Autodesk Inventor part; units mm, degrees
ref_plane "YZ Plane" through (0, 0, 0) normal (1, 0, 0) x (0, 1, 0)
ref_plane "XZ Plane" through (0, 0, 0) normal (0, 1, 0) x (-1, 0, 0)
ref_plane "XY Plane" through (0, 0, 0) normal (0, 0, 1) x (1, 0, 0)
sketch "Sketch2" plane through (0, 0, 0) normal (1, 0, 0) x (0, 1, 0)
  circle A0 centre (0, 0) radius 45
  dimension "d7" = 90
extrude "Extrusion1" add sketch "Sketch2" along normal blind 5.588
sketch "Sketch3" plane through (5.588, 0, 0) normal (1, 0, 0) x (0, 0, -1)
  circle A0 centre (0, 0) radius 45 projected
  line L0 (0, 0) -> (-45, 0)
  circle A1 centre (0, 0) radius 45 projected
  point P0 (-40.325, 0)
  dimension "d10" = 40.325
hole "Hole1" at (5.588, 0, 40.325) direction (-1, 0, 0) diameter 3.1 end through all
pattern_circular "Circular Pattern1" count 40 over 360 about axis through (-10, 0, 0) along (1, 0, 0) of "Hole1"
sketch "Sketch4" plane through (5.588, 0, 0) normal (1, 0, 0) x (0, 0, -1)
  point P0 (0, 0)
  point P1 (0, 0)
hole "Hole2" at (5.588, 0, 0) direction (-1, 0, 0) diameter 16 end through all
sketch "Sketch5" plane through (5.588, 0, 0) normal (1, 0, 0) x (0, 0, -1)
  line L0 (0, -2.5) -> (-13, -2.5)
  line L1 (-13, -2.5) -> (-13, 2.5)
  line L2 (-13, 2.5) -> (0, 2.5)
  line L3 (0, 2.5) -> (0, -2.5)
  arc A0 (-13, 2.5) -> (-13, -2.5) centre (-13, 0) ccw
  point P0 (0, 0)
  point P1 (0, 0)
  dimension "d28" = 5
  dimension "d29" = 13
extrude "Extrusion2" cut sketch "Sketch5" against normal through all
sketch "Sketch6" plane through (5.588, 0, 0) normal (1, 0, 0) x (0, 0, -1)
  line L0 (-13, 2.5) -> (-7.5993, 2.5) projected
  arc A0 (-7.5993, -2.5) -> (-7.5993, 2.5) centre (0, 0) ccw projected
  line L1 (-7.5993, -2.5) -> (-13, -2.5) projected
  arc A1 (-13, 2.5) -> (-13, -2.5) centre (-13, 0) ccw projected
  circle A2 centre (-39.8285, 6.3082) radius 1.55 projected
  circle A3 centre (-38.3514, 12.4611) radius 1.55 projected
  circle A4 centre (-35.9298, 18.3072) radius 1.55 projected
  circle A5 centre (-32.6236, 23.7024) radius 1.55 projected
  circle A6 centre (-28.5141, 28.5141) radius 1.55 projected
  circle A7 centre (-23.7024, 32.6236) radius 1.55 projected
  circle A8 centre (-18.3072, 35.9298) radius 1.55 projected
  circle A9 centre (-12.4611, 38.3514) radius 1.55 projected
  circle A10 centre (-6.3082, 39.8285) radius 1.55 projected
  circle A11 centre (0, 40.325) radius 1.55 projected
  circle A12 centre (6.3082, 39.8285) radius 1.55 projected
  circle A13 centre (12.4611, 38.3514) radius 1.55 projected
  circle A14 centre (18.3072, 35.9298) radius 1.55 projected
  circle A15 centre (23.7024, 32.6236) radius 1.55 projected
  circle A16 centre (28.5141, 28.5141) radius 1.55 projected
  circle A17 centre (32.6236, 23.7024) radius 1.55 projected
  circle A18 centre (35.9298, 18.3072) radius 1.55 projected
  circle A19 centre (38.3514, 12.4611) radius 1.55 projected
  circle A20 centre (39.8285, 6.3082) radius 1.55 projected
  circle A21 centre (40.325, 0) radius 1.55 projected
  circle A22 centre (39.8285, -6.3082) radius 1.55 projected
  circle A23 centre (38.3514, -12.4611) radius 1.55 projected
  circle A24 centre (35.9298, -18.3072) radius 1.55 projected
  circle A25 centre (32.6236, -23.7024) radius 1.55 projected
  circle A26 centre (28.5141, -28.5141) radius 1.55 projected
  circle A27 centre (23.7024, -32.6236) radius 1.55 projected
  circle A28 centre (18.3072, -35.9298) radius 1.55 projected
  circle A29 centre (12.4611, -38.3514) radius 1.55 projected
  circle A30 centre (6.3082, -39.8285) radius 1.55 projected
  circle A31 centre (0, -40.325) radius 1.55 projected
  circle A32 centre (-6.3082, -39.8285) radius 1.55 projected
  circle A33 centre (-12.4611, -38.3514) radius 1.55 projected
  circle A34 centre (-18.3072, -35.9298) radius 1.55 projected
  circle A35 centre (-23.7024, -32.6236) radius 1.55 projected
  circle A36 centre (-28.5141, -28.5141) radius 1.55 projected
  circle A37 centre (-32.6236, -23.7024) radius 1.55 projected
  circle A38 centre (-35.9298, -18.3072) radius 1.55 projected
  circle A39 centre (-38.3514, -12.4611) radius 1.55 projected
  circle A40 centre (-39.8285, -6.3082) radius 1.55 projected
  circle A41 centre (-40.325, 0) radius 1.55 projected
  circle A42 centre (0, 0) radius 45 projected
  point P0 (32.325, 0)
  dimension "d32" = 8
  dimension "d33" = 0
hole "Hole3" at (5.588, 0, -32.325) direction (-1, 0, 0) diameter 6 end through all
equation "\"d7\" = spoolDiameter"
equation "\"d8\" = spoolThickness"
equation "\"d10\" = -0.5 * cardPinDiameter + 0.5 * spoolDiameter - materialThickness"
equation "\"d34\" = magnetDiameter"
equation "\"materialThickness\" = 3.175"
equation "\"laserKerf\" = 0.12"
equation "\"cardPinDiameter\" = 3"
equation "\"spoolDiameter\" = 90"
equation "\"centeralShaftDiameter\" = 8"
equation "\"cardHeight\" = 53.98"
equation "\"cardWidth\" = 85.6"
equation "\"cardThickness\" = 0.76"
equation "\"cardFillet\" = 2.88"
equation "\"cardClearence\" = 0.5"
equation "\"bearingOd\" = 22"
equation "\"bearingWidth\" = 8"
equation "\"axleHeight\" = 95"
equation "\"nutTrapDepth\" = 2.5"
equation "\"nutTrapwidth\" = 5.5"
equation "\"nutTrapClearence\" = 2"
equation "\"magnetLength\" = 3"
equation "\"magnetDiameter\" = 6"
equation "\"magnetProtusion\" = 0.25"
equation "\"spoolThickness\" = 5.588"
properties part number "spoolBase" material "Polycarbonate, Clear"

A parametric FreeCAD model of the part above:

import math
import FreeCAD as App
import Part
import Sketcher

doc = App.newDocument("Part")
params = doc.addObject("Spreadsheet::Sheet", "Params")
for row, (alias, value) in enumerate([
    ("sketch1_diameter", "90 mm"),
    ("pad1_length", "5.588 mm"),
    ("sketch2_diameter", "3.1 mm"),
    ("hole_diameter", "3.1 mm"),
    ("sketch3_diameter", "16 mm"),
    ("hole2_diameter", "16 mm"),
    ("sketch4_radius", "2.5 mm"),
    ("sketch4_height", "13 mm"),
    ("sketch5_diameter", "6 mm"),
    ("hole3_diameter", "6 mm"),
], start=1):
    params.set(f"A{row}", alias)
    params.set(f"B{row}", "=" + value)
    params.setAlias(f"B{row}", alias)

body = doc.addObject("PartDesign::Body", "Body")

sketch1 = doc.addObject("Sketcher::SketchObject", "Sketch")
body.addObject(sketch1)
sketch1.AttachmentSupport = (doc.YZ_Plane, [""])
sketch1.MapMode = "FlatFace"
sketch1.addGeometry(Part.Circle(App.Vector(0, 0, 0), App.Vector(0, 0, 1), 45), False)
sketch1.addConstraint([
    Sketcher.Constraint("Coincident", 0, 3, -1, 1),
    Sketcher.Constraint("Diameter", 0, 90.0),
])
sketch1.setExpression("Constraints[1]", "Params.sketch1_diameter")
pad1 = doc.addObject("PartDesign::Pad", "Pad")
body.addObject(pad1)
pad1.Profile = sketch1
pad1.setExpression("Length", "Params.pad1_length")

sketch2 = doc.addObject("Sketcher::SketchObject", "Sketch001")
body.addObject(sketch2)
sketch2.AttachmentSupport = (doc.YZ_Plane, [""])
sketch2.MapMode = "FlatFace"
sketch2.AttachmentOffset = App.Placement(App.Vector(0, 0, 5.588), App.Rotation())
sketch2.addGeometry(Part.Circle(App.Vector(0, 40.3, 0), App.Vector(0, 0, 1), 1.6), False)
sketch2.addConstraint([
    Sketcher.Constraint("PointOnObject", 0, 3, -2),
    Sketcher.Constraint("Diameter", 0, 3.1),
    Sketcher.Constraint("DistanceY", -1, 1, 0, 3, 40.325),
])
sketch2.setExpression("Constraints[1]", "Params.sketch2_diameter")
doc.recompute()
hole = doc.addObject("PartDesign::Hole", "Hole")
body.addObject(hole)
hole.Profile = sketch2
hole.ThreadType = "None"
hole.setExpression("Diameter", "Params.hole_diameter")
hole.DepthType = "ThroughAll"
doc.recompute()

polarpattern = doc.addObject("PartDesign::PolarPattern", "PolarPattern")
body.addObject(polarpattern)
polarpattern.Originals = [hole]
polarpattern.Axis = (doc.X_Axis, [""])
polarpattern.Angle = 360
polarpattern.Occurrences = 40
body.Tip = polarpattern

sketch3 = doc.addObject("Sketcher::SketchObject", "Sketch002")
body.addObject(sketch3)
sketch3.AttachmentSupport = (doc.YZ_Plane, [""])
sketch3.MapMode = "FlatFace"
sketch3.AttachmentOffset = App.Placement(App.Vector(0, 0, 5.588), App.Rotation())
sketch3.addGeometry(Part.Circle(App.Vector(0, 0, 0), App.Vector(0, 0, 1), 8), False)
sketch3.addConstraint([
    Sketcher.Constraint("Coincident", 0, 3, -1, 1),
    Sketcher.Constraint("Diameter", 0, 16.0),
])
sketch3.setExpression("Constraints[1]", "Params.sketch3_diameter")
doc.recompute()
hole2 = doc.addObject("PartDesign::Hole", "Hole001")
body.addObject(hole2)
hole2.Profile = sketch3
hole2.ThreadType = "None"
hole2.setExpression("Diameter", "Params.hole2_diameter")
hole2.DepthType = "ThroughAll"

sketch4 = doc.addObject("Sketcher::SketchObject", "Sketch003")
body.addObject(sketch4)
sketch4.AttachmentSupport = (doc.YZ_Plane, [""])
sketch4.MapMode = "FlatFace"
sketch4.AttachmentOffset = App.Placement(App.Vector(0, 0, 5.588), App.Rotation())
sketch4.addGeometry([
    Part.LineSegment(App.Vector(-2.5, 13, 0), App.Vector(-2.5, 0, 0)),
    Part.LineSegment(App.Vector(-2.5, 0, 0), App.Vector(2.5, 0, 0)),
    Part.LineSegment(App.Vector(2.5, 0, 0), App.Vector(2.5, 13, 0)),
    Part.ArcOfCircle(Part.Circle(App.Vector(0, 13, 0), App.Vector(0, 0, 1), 2.5), math.radians(0), math.radians(180)),
], False)
sketch4.addConstraint([
    Sketcher.Constraint("Coincident", 0, 2, 1, 1),
    Sketcher.Constraint("Coincident", 1, 2, 2, 1),
    Sketcher.Constraint("Tangent", 2, 2, 3, 1),
    Sketcher.Constraint("Tangent", 3, 2, 0, 1),
    Sketcher.Constraint("Vertical", 0),
    Sketcher.Constraint("Horizontal", 1),
    Sketcher.Constraint("Vertical", 2),
    Sketcher.Constraint("Symmetric", 0, 2, 1, 2, -1, 1),
    Sketcher.Constraint("Radius", 3, 2.5),
    Sketcher.Constraint("DistanceY", 0, 2, 0, 1, 13.0),
])
sketch4.setExpression("Constraints[8]", "Params.sketch4_radius")
sketch4.setExpression("Constraints[9]", "Params.sketch4_height")
pocket1 = doc.addObject("PartDesign::Pocket", "Pocket")
body.addObject(pocket1)
pocket1.Profile = sketch4
pocket1.Type = "ThroughAll"

sketch5 = doc.addObject("Sketcher::SketchObject", "Sketch004")
body.addObject(sketch5)
sketch5.AttachmentSupport = (doc.YZ_Plane, [""])
sketch5.MapMode = "FlatFace"
sketch5.AttachmentOffset = App.Placement(App.Vector(0, 0, 5.588), App.Rotation())
sketch5.addGeometry(Part.Circle(App.Vector(0, -32.3, 0), App.Vector(0, 0, 1), 3), False)
sketch5.addConstraint([
    Sketcher.Constraint("PointOnObject", 0, 3, -2),
    Sketcher.Constraint("Diameter", 0, 6.0),
    Sketcher.Constraint("DistanceY", 0, 3, -1, 1, 32.325),
])
sketch5.setExpression("Constraints[1]", "Params.sketch5_diameter")
doc.recompute()
hole3 = doc.addObject("PartDesign::Hole", "Hole002")
body.addObject(hole3)
hole3.Profile = sketch5
hole3.ThreadType = "None"
hole3.setExpression("Diameter", "Params.hole3_diameter")
hole3.DepthType = "ThroughAll"

doc.recompute()
